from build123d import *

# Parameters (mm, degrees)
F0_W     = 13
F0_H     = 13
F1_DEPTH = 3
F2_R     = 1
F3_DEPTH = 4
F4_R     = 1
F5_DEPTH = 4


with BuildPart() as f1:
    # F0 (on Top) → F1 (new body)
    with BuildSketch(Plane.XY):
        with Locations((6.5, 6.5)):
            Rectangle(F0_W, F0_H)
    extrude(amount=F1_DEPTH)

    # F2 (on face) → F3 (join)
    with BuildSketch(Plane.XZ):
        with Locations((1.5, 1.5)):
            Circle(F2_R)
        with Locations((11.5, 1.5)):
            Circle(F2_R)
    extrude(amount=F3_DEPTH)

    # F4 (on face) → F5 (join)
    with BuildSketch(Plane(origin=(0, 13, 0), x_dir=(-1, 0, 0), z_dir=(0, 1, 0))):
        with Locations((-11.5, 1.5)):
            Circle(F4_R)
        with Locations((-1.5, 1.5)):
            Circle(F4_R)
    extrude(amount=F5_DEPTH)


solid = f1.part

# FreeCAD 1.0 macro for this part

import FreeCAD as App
import Part
import Sketcher
Q = App.Units.Quantity


def add_polygon(sketch, points):
    """Adds a closed chain of lines whose ends are joined by coincident constraints."""
    first, n = sketch.GeometryCount, len(points)
    for a, b in zip(points, points[1:] + points[:1]):
        sketch.addGeometry(Part.LineSegment(App.Vector(*a, 0), App.Vector(*b, 0)), False)
    for i in range(n):
        sketch.addConstraint(Sketcher.Constraint("Coincident", first + i, 2, first + (i + 1) % n, 1))

doc = App.newDocument("Part")
body = doc.addObject("PartDesign::Body", "Body")

sketch1 = body.newObject("Sketcher::SketchObject", "Sketch")
sketch1.AttachmentSupport = (doc.getObject("XY_Plane"), [""])
sketch1.MapMode = "FlatFace"
add_polygon(sketch1, [(0, 13), (0, 0), (13, 0), (13, 13)])
sketch1.addConstraint([
    Sketcher.Constraint("Vertical", 0),
    Sketcher.Constraint("Horizontal", 1),
    Sketcher.Constraint("Vertical", 2),
    Sketcher.Constraint("Horizontal", 3),
    Sketcher.Constraint("Coincident", 0, 2, -1, 1),
    Sketcher.Constraint("Equal", 3, 0),
    Sketcher.Constraint("DistanceX", 1, 1, 1, 2, Q("13 mm")),
])
pad1 = body.newObject("PartDesign::Pad", "Pad")
pad1.Profile = sketch1
pad1.Length = 3

sketch2 = body.newObject("Sketcher::SketchObject", "Sketch001")
sketch2.AttachmentSupport = (doc.getObject("XZ_Plane"), [""])
sketch2.MapMode = "FlatFace"
sketch2.addGeometry([
    Part.Circle(App.Vector(1.5, 1.5, 0), App.Vector(0, 0, 1), 1),
    Part.Circle(App.Vector(11.5, 1.5, 0), App.Vector(0, 0, 1), 1),
], False)
sketch2.addConstraint([
    Sketcher.Constraint("Equal", 0, 1),
    Sketcher.Constraint("Horizontal", 0, 3, 1, 3),
    Sketcher.Constraint("Diameter", 0, Q("2 mm")),
    Sketcher.Constraint("DistanceX", 0, 3, 1, 3, Q("10 mm")),
    Sketcher.Constraint("DistanceX", -1, 1, 0, 3, Q("1.5 mm")),
    Sketcher.Constraint("DistanceY", -1, 1, 0, 3, Q("1.5 mm")),
])
pad2 = body.newObject("PartDesign::Pad", "Pad001")
pad2.Profile = sketch2
pad2.Length = 4

sketch3 = body.newObject("Sketcher::SketchObject", "Sketch002")
sketch3.AttachmentSupport = (doc.getObject("XZ_Plane"), [""])
sketch3.MapMode = "FlatFace"
sketch3.AttachmentOffset = App.Placement(App.Vector(0, 0, -13), App.Rotation())
sketch3.addGeometry([
    Part.Circle(App.Vector(11.5, 1.5, 0), App.Vector(0, 0, 1), 1),
    Part.Circle(App.Vector(1.5, 1.5, 0), App.Vector(0, 0, 1), 1),
], False)
sketch3.addConstraint([
    Sketcher.Constraint("Equal", 0, 1),
    Sketcher.Constraint("Horizontal", 0, 3, 1, 3),
    Sketcher.Constraint("Diameter", 0, Q("2 mm")),
    Sketcher.Constraint("DistanceX", 1, 3, 0, 3, Q("10 mm")),
    Sketcher.Constraint("DistanceX", -1, 1, 0, 3, Q("11.5 mm")),
    Sketcher.Constraint("DistanceY", -1, 1, 0, 3, Q("1.5 mm")),
])
pad3 = body.newObject("PartDesign::Pad", "Pad002")
pad3.Profile = sketch3
pad3.Length = 4
pad3.Reversed = True

doc.recompute()
